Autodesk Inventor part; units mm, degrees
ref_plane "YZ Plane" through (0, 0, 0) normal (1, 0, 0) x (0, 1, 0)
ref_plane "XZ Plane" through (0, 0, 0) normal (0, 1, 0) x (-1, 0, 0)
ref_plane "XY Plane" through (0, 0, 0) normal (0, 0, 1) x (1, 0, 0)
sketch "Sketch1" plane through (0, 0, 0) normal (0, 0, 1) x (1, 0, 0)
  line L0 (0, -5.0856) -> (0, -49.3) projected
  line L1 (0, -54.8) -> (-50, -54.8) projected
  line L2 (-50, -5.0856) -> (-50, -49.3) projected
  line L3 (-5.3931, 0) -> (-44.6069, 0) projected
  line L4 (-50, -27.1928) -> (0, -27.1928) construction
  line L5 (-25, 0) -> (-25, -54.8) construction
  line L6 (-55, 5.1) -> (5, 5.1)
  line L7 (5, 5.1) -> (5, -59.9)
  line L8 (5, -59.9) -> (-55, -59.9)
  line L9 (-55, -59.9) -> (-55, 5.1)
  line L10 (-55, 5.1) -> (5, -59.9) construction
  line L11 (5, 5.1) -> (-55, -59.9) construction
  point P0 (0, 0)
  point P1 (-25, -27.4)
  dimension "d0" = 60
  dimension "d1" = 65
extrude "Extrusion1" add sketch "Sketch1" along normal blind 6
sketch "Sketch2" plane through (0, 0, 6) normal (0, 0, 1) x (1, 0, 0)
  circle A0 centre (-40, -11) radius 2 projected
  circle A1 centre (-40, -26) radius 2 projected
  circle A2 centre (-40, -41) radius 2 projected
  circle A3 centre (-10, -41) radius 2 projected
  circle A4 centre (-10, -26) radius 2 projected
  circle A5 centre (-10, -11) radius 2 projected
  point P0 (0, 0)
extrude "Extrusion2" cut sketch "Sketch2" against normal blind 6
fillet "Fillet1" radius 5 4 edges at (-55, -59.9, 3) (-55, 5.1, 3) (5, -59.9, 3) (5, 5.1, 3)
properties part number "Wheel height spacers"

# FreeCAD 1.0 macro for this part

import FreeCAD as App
import Part
import Sketcher
from FreeCAD import Vector
Q = App.Units.Quantity


def edges_at(feature, points):
    """Names of the edges that pass closest to the given points."""
    edges = feature.Shape.Edges
    near = lambda p: min(range(len(edges)), key=lambda i: edges[i].distToShape(Part.Vertex(*p))[0])
    return sorted({f"Edge{near(p) + 1}" for p in points})

doc = App.newDocument("Part")
body = doc.addObject("PartDesign::Body", "Body")

sketch1 = body.newObject("Sketcher::SketchObject", "Sketch")
sketch1.AttachmentSupport = (doc.getObject("XY_Plane"), [""])
sketch1.MapMode = "FlatFace"
sketch1.addGeometry([
    Part.LineSegment(Vector(5, 5, 0), Vector(-55, 5, 0)),
    Part.LineSegment(Vector(-55, 5, 0), Vector(-55, -60, 0)),
    Part.LineSegment(Vector(-55, -60, 0), Vector(5, -60, 0)),
    Part.LineSegment(Vector(5, -60, 0), Vector(5, 5, 0)),
], False)
sketch1.addConstraint([
    Sketcher.Constraint("Coincident", 0, 2, 1, 1),
    Sketcher.Constraint("Coincident", 1, 2, 2, 1),
    Sketcher.Constraint("Coincident", 2, 2, 3, 1),
    Sketcher.Constraint("Coincident", 3, 2, 0, 1),
    Sketcher.Constraint("Horizontal", 0),
    Sketcher.Constraint("Vertical", 1),
    Sketcher.Constraint("Horizontal", 2),
    Sketcher.Constraint("Vertical", 3),
    Sketcher.Constraint("DistanceX", 0, 2, 0, 1, Q("60 mm")),
    Sketcher.Constraint("DistanceY", 1, 2, 1, 1, Q("65 mm")),
    Sketcher.Constraint("DistanceX", 0, 2, -1, 1, Q("55 mm")),
    Sketcher.Constraint("DistanceY", -1, 1, 0, 2, Q("5.1 mm")),
])
pad1 = body.newObject("PartDesign::Pad", "Pad")
pad1.Profile = sketch1
pad1.Length = 6

sketch2 = body.newObject("Sketcher::SketchObject", "Sketch001")
sketch2.AttachmentSupport = (doc.getObject("XY_Plane"), [""])
sketch2.MapMode = "FlatFace"
sketch2.AttachmentOffset = App.Placement(Vector(0, 0, 6), App.Rotation())
sketch2.addGeometry([
    Part.Circle(Vector(-40, -11, 0), Vector(0, 0, 1), 2),
    Part.Circle(Vector(-40, -26, 0), Vector(0, 0, 1), 2),
    Part.Circle(Vector(-40, -41, 0), Vector(0, 0, 1), 2),
    Part.Circle(Vector(-10, -41, 0), Vector(0, 0, 1), 2),
    Part.Circle(Vector(-10, -26, 0), Vector(0, 0, 1), 2),
    Part.Circle(Vector(-10, -11, 0), Vector(0, 0, 1), 2),
], False)
sketch2.addConstraint([
    Sketcher.Constraint("Equal", 0, 1),
    Sketcher.Constraint("Equal", 1, 2),
    Sketcher.Constraint("Equal", 2, 3),
    Sketcher.Constraint("Equal", 3, 4),
    Sketcher.Constraint("Equal", 4, 5),
    Sketcher.Constraint("Horizontal", 2, 3, 3, 3),
    Sketcher.Constraint("Horizontal", 1, 3, 4, 3),
    Sketcher.Constraint("Horizontal", 0, 3, 5, 3),
    Sketcher.Constraint("Vertical", 0, 3, 1, 3),
    Sketcher.Constraint("Vertical", 1, 3, 2, 3),
    Sketcher.Constraint("Vertical", 3, 3, 4, 3),
    Sketcher.Constraint("Vertical", 4, 3, 5, 3),
    Sketcher.Constraint("Diameter", 0, Q("4 mm")),
    Sketcher.Constraint("DistanceX", 0, 3, -1, 1, Q("40 mm")),
    Sketcher.Constraint("DistanceY", 0, 3, -1, 1, Q("11 mm")),
    Sketcher.Constraint("DistanceY", 1, 3, -1, 1, Q("26 mm")),
    Sketcher.Constraint("DistanceY", 2, 3, -1, 1, Q("41 mm")),
    Sketcher.Constraint("DistanceX", 3, 3, -1, 1, Q("10 mm")),
])
pocket1 = body.newObject("PartDesign::Pocket", "Pocket")
pocket1.Profile = sketch2
pocket1.Length = 6
doc.recompute()

fillet = body.newObject("PartDesign::Fillet", "Fillet")
fillet.Base = (pocket1, edges_at(pocket1, [
    (-55, -59.9, 3),
    (-55, 5.1, 3),
    (5, -59.9, 3),
    (5, 5.1, 3),
]))
fillet.Radius = 5

doc.recompute()
